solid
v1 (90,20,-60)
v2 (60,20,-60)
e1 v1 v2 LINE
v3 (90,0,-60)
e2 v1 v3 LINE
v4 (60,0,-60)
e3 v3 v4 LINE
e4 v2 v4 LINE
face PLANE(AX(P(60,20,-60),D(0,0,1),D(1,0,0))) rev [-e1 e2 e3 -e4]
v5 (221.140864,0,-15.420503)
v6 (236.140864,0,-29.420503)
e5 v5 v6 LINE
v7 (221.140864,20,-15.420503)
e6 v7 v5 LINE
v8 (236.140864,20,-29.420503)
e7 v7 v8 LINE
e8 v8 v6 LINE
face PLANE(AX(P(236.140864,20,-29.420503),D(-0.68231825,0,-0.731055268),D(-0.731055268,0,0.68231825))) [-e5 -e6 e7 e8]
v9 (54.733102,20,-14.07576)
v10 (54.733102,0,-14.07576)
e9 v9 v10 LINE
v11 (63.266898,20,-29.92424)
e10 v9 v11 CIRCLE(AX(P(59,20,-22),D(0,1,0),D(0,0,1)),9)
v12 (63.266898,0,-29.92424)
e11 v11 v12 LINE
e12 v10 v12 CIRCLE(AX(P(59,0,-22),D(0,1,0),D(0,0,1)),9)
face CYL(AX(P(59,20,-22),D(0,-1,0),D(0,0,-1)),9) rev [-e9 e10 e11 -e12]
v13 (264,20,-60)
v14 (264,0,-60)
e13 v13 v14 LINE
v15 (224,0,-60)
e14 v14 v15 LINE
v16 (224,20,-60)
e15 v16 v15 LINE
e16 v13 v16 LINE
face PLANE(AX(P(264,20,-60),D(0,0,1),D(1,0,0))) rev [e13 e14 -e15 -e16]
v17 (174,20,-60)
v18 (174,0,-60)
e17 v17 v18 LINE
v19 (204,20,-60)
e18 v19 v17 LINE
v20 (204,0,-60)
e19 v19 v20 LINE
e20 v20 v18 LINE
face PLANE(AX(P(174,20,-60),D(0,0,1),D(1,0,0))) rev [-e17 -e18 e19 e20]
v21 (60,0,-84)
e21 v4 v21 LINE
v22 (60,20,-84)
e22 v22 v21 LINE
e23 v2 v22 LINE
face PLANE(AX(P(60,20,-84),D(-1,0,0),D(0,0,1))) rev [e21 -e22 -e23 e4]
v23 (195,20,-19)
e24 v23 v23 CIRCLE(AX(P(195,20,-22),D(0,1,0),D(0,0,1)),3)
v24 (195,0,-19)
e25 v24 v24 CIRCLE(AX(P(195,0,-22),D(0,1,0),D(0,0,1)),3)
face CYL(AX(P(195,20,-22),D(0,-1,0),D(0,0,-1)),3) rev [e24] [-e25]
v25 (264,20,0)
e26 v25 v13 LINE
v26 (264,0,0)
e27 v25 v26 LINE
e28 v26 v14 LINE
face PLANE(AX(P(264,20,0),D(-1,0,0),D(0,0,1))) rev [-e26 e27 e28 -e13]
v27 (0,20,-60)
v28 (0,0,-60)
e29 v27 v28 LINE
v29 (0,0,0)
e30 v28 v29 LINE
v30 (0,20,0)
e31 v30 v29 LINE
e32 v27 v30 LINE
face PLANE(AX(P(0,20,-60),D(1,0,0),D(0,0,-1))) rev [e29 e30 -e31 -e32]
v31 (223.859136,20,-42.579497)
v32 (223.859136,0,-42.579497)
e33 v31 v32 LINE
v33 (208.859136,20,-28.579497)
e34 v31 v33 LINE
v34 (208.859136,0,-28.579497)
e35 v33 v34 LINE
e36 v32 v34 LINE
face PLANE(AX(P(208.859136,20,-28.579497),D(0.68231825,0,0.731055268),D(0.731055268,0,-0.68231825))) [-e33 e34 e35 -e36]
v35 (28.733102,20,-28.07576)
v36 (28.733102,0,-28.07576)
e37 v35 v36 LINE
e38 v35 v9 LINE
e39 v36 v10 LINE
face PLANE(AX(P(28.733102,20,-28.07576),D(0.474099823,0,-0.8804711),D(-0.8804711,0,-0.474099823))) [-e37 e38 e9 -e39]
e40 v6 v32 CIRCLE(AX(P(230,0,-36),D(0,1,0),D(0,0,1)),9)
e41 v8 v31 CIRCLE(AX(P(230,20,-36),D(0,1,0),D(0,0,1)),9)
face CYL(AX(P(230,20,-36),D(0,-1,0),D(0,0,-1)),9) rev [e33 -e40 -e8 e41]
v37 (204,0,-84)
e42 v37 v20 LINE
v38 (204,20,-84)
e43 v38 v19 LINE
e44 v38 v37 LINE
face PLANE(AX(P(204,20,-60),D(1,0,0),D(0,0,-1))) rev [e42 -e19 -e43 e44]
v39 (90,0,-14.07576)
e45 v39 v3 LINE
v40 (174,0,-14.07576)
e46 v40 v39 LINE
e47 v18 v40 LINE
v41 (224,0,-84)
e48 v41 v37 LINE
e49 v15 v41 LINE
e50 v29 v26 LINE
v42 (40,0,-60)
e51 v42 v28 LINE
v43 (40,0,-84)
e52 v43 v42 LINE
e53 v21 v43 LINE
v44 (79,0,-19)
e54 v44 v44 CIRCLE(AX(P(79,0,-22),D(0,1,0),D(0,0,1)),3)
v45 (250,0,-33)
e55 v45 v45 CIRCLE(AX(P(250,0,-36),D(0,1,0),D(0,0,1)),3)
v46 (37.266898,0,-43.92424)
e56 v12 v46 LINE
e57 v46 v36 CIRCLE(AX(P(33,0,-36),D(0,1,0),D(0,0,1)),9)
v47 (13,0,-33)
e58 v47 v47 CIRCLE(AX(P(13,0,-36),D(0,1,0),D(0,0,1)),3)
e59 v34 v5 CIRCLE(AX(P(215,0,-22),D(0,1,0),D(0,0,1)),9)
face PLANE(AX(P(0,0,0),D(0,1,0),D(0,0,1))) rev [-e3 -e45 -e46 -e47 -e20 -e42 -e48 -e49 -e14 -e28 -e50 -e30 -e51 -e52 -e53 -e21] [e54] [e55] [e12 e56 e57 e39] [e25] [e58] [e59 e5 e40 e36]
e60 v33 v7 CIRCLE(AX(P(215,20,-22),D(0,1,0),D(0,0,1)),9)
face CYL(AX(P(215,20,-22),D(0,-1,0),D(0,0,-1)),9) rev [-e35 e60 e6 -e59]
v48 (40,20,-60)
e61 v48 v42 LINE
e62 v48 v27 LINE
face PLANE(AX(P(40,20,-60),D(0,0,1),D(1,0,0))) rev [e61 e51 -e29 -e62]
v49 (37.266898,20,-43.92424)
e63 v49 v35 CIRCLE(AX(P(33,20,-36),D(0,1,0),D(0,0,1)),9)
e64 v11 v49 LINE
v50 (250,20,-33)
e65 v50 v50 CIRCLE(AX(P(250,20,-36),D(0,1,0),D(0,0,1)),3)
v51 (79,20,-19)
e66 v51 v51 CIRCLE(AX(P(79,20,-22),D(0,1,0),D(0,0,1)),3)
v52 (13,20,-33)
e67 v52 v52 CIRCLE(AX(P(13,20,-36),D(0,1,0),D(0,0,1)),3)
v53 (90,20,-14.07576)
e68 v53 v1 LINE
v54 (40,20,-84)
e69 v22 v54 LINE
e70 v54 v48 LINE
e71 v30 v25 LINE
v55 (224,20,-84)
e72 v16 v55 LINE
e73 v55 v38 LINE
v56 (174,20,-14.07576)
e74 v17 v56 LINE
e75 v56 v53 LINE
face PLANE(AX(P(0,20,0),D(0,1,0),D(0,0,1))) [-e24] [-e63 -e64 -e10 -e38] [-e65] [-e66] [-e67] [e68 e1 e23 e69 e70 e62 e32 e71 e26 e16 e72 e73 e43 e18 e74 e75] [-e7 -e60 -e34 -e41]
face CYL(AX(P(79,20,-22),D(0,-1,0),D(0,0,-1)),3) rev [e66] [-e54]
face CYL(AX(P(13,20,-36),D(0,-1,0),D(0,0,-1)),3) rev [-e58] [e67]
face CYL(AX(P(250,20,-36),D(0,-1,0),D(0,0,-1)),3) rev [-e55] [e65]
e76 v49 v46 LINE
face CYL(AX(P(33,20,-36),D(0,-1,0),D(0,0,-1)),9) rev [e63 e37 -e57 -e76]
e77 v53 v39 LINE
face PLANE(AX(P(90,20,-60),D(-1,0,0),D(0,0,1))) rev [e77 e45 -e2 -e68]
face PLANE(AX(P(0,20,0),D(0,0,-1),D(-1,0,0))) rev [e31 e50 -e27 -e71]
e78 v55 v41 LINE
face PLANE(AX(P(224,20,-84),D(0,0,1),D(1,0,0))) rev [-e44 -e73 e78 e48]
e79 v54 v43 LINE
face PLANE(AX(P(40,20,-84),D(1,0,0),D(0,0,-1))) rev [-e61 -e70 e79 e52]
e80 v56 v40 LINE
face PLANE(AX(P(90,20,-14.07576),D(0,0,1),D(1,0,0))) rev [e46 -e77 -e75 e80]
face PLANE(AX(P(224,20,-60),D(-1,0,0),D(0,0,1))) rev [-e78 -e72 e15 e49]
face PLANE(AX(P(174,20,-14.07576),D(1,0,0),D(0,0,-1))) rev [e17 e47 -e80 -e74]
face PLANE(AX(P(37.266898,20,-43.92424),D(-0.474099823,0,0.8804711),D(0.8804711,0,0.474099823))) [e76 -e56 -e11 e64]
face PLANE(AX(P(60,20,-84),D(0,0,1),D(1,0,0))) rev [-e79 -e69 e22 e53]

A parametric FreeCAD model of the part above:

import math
import FreeCAD as App
import Part
import Sketcher
from FreeCAD import Vector
Q = App.Units.Quantity

doc = App.newDocument("Part")
body = doc.addObject("PartDesign::Body", "Body")

sketch1 = body.newObject("Sketcher::SketchObject", "Sketch")
sketch1.AttachmentSupport = (doc.getObject("XZ_Plane"), [""])
sketch1.MapMode = "FlatFace"
sketch1.addGeometry(Part.LineSegment(Vector(0, 0, 0), Vector(264, 0, 0)), False)
sketch1.addGeometry(Part.LineSegment(Vector(264, 0, 0), Vector(264, -60, 0)), False)
sketch1.addGeometry(Part.LineSegment(Vector(264, -60, 0), Vector(224, -60, 0)), False)
sketch1.addGeometry(Part.LineSegment(Vector(224, -60, 0), Vector(224, -84, 0)), False)
sketch1.addGeometry(Part.LineSegment(Vector(224, -84, 0), Vector(204, -84, 0)), False)
sketch1.addGeometry(Part.LineSegment(Vector(204, -84, 0), Vector(204, -60, 0)), False)
sketch1.addGeometry(Part.LineSegment(Vector(204, -60, 0), Vector(174, -60, 0)), False)
sketch1.addGeometry(Part.LineSegment(Vector(174, -60, 0), Vector(174, -14.1, 0)), False)
sketch1.addGeometry(Part.LineSegment(Vector(174, -14.1, 0), Vector(90, -14.1, 0)), False)
sketch1.addGeometry(Part.LineSegment(Vector(90, -14.1, 0), Vector(90, -60, 0)), False)
sketch1.addGeometry(Part.LineSegment(Vector(90, -60, 0), Vector(60, -60, 0)), False)
sketch1.addGeometry(Part.LineSegment(Vector(60, -60, 0), Vector(60, -84, 0)), False)
sketch1.addGeometry(Part.LineSegment(Vector(60, -84, 0), Vector(40, -84, 0)), False)
sketch1.addGeometry(Part.LineSegment(Vector(40, -84, 0), Vector(40, -60, 0)), False)
sketch1.addGeometry(Part.LineSegment(Vector(40, -60, 0), Vector(0, -60, 0)), False)
sketch1.addGeometry(Part.LineSegment(Vector(0, -60, 0), Vector(0, 0, 0)), False)
sketch1.addGeometry(Part.Circle(Vector(79, -22, 0), Vector(0, 0, 1), 3), False)
sketch1.addGeometry(Part.Circle(Vector(195, -22, 0), Vector(0, 0, 1), 3), False)
sketch1.addGeometry(Part.ArcOfCircle(Part.Circle(Vector(33, -36, 0), Vector(0, 0, 1), 9), math.radians(118), math.radians(298)), False)
sketch1.addGeometry(Part.LineSegment(Vector(37.3, -43.9, 0), Vector(63.3, -29.9, 0)), False)
sketch1.addGeometry(Part.ArcOfCircle(Part.Circle(Vector(59, -22, 0), Vector(0, 0, 1), 9), math.radians(-62), math.radians(118)), False)
sketch1.addGeometry(Part.LineSegment(Vector(54.7, -14.1, 0), Vector(28.7, -28.1, 0)), False)
sketch1.addGeometry(Part.Circle(Vector(13, -36, 0), Vector(0, 0, 1), 3), False)
sketch1.addGeometry(Part.ArcOfCircle(Part.Circle(Vector(215, -22, 0), Vector(0, 0, 1), 9), math.radians(47), math.radians(227)), False)
sketch1.addGeometry(Part.LineSegment(Vector(208.9, -28.6, 0), Vector(223.9, -42.6, 0)), False)
sketch1.addGeometry(Part.ArcOfCircle(Part.Circle(Vector(230, -36, 0), Vector(0, 0, 1), 9), math.radians(-133), math.radians(47)), False)
sketch1.addGeometry(Part.LineSegment(Vector(236.1, -29.4, 0), Vector(221.1, -15.4, 0)), False)
sketch1.addGeometry(Part.Circle(Vector(250, -36, 0), Vector(0, 0, 1), 3), False)
sketch1.addConstraint(Sketcher.Constraint("Coincident", 0, 2, 1, 1))
sketch1.addConstraint(Sketcher.Constraint("Coincident", 1, 2, 2, 1))
sketch1.addConstraint(Sketcher.Constraint("Coincident", 2, 2, 3, 1))
sketch1.addConstraint(Sketcher.Constraint("Coincident", 3, 2, 4, 1))
sketch1.addConstraint(Sketcher.Constraint("Coincident", 4, 2, 5, 1))
sketch1.addConstraint(Sketcher.Constraint("Coincident", 5, 2, 6, 1))
sketch1.addConstraint(Sketcher.Constraint("Coincident", 6, 2, 7, 1))
sketch1.addConstraint(Sketcher.Constraint("Coincident", 7, 2, 8, 1))
sketch1.addConstraint(Sketcher.Constraint("Coincident", 8, 2, 9, 1))
sketch1.addConstraint(Sketcher.Constraint("Coincident", 9, 2, 10, 1))
sketch1.addConstraint(Sketcher.Constraint("Coincident", 10, 2, 11, 1))
sketch1.addConstraint(Sketcher.Constraint("Coincident", 11, 2, 12, 1))
sketch1.addConstraint(Sketcher.Constraint("Coincident", 12, 2, 13, 1))
sketch1.addConstraint(Sketcher.Constraint("Coincident", 13, 2, 14, 1))
sketch1.addConstraint(Sketcher.Constraint("Coincident", 14, 2, 15, 1))
sketch1.addConstraint(Sketcher.Constraint("Coincident", 15, 2, 0, 1))
sketch1.addConstraint(Sketcher.Constraint("Tangent", 18, 2, 19, 1))
sketch1.addConstraint(Sketcher.Constraint("Tangent", 19, 2, 20, 1))
sketch1.addConstraint(Sketcher.Constraint("Tangent", 20, 2, 21, 1))
sketch1.addConstraint(Sketcher.Constraint("Tangent", 21, 2, 18, 1))
sketch1.addConstraint(Sketcher.Constraint("Tangent", 23, 2, 24, 1))
sketch1.addConstraint(Sketcher.Constraint("Tangent", 24, 2, 25, 1))
sketch1.addConstraint(Sketcher.Constraint("Tangent", 25, 2, 26, 1))
sketch1.addConstraint(Sketcher.Constraint("Tangent", 26, 2, 23, 1))
sketch1.addConstraint(Sketcher.Constraint("Horizontal", 0))
sketch1.addConstraint(Sketcher.Constraint("Vertical", 1))
sketch1.addConstraint(Sketcher.Constraint("Horizontal", 2))
sketch1.addConstraint(Sketcher.Constraint("Vertical", 3))
sketch1.addConstraint(Sketcher.Constraint("Horizontal", 4))
sketch1.addConstraint(Sketcher.Constraint("Vertical", 5))
sketch1.addConstraint(Sketcher.Constraint("Horizontal", 6))
sketch1.addConstraint(Sketcher.Constraint("Vertical", 7))
sketch1.addConstraint(Sketcher.Constraint("Horizontal", 8))
sketch1.addConstraint(Sketcher.Constraint("Vertical", 9))
sketch1.addConstraint(Sketcher.Constraint("Horizontal", 10))
sketch1.addConstraint(Sketcher.Constraint("Vertical", 11))
sketch1.addConstraint(Sketcher.Constraint("Horizontal", 12))
sketch1.addConstraint(Sketcher.Constraint("Vertical", 13))
sketch1.addConstraint(Sketcher.Constraint("Horizontal", 14))
sketch1.addConstraint(Sketcher.Constraint("Vertical", 15))
sketch1.addConstraint(Sketcher.Constraint("Coincident", 15, 2, -1, 1))
sketch1.addConstraint(Sketcher.Constraint("Equal", 16, 17))
sketch1.addConstraint(Sketcher.Constraint("Equal", 18, 20))
sketch1.addConstraint(Sketcher.Constraint("Equal", 17, 22))
sketch1.addConstraint(Sketcher.Constraint("Equal", 20, 23))
sketch1.addConstraint(Sketcher.Constraint("Equal", 23, 25))
sketch1.addConstraint(Sketcher.Constraint("Equal", 22, 27))
sketch1.addConstraint(Sketcher.Constraint("Horizontal", 16, 3, 17, 3))
sketch1.addConstraint(Sketcher.Constraint("Horizontal", 17, 3, 20, 3))
sketch1.addConstraint(Sketcher.Constraint("Horizontal", 18, 3, 22, 3))
sketch1.addConstraint(Sketcher.Constraint("Horizontal", 20, 3, 23, 3))
sketch1.addConstraint(Sketcher.Constraint("Horizontal", 22, 3, 25, 3))
sketch1.addConstraint(Sketcher.Constraint("Horizontal", 25, 3, 27, 3))
sketch1.addConstraint(Sketcher.Constraint("Horizontal", 2, 2, 5, 2))
sketch1.addConstraint(Sketcher.Constraint("Horizontal", 6, 2, 9, 2))
sketch1.addConstraint(Sketcher.Constraint("Horizontal", 4, 2, 11, 2))
sketch1.addConstraint(Sketcher.Constraint("Horizontal", 10, 2, 13, 2))
sketch1.addConstraint(Sketcher.Constraint("Horizontal", 8, 2, 20, 2))
sketch1.addConstraint(Sketcher.Constraint("Equal", 6, 10))
sketch1.addConstraint(Sketcher.Constraint("Equal", 4, 12))
sketch1.addConstraint(Sketcher.Constraint("Equal", 2, 14))
sketch1.addConstraint(Sketcher.Constraint("Diameter", 16, Q("6 mm")))
sketch1.addConstraint(Sketcher.Constraint("Radius", 18, Q("9 mm")))
sketch1.addConstraint(Sketcher.Constraint("DistanceX", 0, 1, 0, 2, Q("264 mm")))
sketch1.addConstraint(Sketcher.Constraint("DistanceX", 2, 2, 2, 1, Q("40 mm")))
sketch1.addConstraint(Sketcher.Constraint("DistanceX", 4, 2, 4, 1, Q("20 mm")))
sketch1.addConstraint(Sketcher.Constraint("DistanceX", 6, 2, 6, 1, Q("30 mm")))
sketch1.addConstraint(Sketcher.Constraint("DistanceY", 1, 2, 1, 1, Q("60 mm")))
sketch1.addConstraint(Sketcher.Constraint("DistanceY", 3, 2, 3, 1, Q("24 mm")))
sketch1.addConstraint(Sketcher.Constraint("DistanceX", -1, 1, 16, 3, Q("79 mm")))
sketch1.addConstraint(Sketcher.Constraint("DistanceY", 16, 3, -1, 1, Q("22 mm")))
sketch1.addConstraint(Sketcher.Constraint("DistanceX", -1, 1, 17, 3, Q("195 mm")))
sketch1.addConstraint(Sketcher.Constraint("DistanceX", -1, 1, 18, 3, Q("33 mm")))
sketch1.addConstraint(Sketcher.Constraint("DistanceY", 18, 3, -1, 1, Q("36 mm")))
sketch1.addConstraint(Sketcher.Constraint("DistanceX", -1, 1, 20, 3, Q("59 mm")))
sketch1.addConstraint(Sketcher.Constraint("DistanceX", -1, 1, 22, 3, Q("13 mm")))
sketch1.addConstraint(Sketcher.Constraint("DistanceX", -1, 1, 23, 3, Q("215 mm")))
sketch1.addConstraint(Sketcher.Constraint("DistanceX", -1, 1, 25, 3, Q("230 mm")))
sketch1.addConstraint(Sketcher.Constraint("DistanceX", -1, 1, 27, 3, Q("250 mm")))
pad1 = body.newObject("PartDesign::Pad", "Pad")
pad1.Profile = sketch1
pad1.Length = 20
pad1.Reversed = True

doc.recompute()
